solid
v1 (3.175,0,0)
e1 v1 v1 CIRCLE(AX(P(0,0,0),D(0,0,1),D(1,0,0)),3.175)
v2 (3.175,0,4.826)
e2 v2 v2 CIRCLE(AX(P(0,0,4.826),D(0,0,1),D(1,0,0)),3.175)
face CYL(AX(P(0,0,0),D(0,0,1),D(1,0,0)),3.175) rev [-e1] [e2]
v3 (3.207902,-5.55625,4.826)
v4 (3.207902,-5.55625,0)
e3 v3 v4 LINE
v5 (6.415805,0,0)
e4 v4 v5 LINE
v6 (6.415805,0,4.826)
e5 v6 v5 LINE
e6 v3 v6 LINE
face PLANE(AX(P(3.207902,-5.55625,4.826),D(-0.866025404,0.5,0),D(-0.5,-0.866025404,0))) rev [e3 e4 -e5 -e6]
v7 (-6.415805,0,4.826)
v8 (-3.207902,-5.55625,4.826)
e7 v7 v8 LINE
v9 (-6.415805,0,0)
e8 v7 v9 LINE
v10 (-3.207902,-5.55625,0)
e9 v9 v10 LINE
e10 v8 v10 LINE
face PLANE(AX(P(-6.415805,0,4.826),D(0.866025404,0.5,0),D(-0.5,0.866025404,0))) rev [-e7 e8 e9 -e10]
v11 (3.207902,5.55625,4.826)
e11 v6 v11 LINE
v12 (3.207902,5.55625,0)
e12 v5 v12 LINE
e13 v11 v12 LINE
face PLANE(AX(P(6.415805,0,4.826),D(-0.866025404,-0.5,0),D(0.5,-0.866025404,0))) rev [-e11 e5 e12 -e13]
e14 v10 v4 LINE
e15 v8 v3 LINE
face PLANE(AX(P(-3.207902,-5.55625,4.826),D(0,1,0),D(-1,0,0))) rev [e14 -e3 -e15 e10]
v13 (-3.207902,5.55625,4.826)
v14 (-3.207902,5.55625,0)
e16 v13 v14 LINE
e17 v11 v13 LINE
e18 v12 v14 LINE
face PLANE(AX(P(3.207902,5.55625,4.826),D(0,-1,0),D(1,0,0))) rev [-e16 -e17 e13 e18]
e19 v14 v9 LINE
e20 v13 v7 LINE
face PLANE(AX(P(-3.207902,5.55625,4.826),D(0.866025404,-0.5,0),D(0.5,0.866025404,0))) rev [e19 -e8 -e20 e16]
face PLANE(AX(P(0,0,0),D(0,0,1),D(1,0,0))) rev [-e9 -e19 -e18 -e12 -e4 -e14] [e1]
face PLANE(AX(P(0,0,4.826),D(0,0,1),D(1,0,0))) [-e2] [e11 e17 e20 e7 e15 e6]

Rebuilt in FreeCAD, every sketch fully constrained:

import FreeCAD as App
import Part
import Sketcher

V = App.Vector
Q = App.Units.Quantity

doc = App.newDocument("Part")
body = doc.addObject("PartDesign::Body", "Body")

sketch1 = doc.addObject("Sketcher::SketchObject", "Sketch")
body.addObject(sketch1)
sketch1.AttachmentSupport = (doc.XY_Plane, [""])
sketch1.MapMode = "FlatFace"
sketch1.addGeometry(Part.LineSegment(V(-6.415805, 0, 0), V(-3.207902, -5.55625, 0)), False)
sketch1.addGeometry(Part.LineSegment(V(-3.207902, -5.55625, 0), V(3.207902, -5.55625, 0)), False)
sketch1.addGeometry(Part.LineSegment(V(3.207902, -5.55625, 0), V(6.415805, 0, 0)), False)
sketch1.addGeometry(Part.LineSegment(V(6.415805, 0, 0), V(3.207902, 5.55625, 0)), False)
sketch1.addGeometry(Part.LineSegment(V(3.207902, 5.55625, 0), V(-3.207902, 5.55625, 0)), False)
sketch1.addGeometry(Part.LineSegment(V(-3.207902, 5.55625, 0), V(-6.415805, 0, 0)), False)
sketch1.addConstraint(Sketcher.Constraint("Coincident", 0, 2, 1, 1))
sketch1.addConstraint(Sketcher.Constraint("Coincident", 1, 2, 2, 1))
sketch1.addConstraint(Sketcher.Constraint("Coincident", 2, 2, 3, 1))
sketch1.addConstraint(Sketcher.Constraint("Coincident", 3, 2, 4, 1))
sketch1.addConstraint(Sketcher.Constraint("Coincident", 4, 2, 5, 1))
sketch1.addConstraint(Sketcher.Constraint("Coincident", 5, 2, 0, 1))
sketch1.addConstraint(Sketcher.Constraint("Horizontal", 1))
sketch1.addConstraint(Sketcher.Constraint("Horizontal", 4))
sketch1.addConstraint(Sketcher.Constraint("Symmetric", 0, 2, 3, 2, -1, 1))
sketch1.addConstraint(Sketcher.Constraint("Symmetric", 2, 2, 5, 2, -1, 1))
sketch1.addConstraint(Sketcher.Constraint("PointOnObject", 2, 2, -1))
sketch1.addConstraint(Sketcher.Constraint("Parallel", 2, 5))
sketch1.addConstraint(Sketcher.Constraint("Vertical", 1, 2, 3, 2))
sketch1.addConstraint(Sketcher.Constraint("Angle", 0, Q("-60 deg")))
sketch1.addConstraint(Sketcher.Constraint("DistanceY", 0, 2, -1, 1, Q("0.21875 in")))
sketch1.addConstraint(Sketcher.Constraint("DistanceX", 1, 1, 1, 2, Q("6.415805 mm")))
pad1 = doc.addObject("PartDesign::Pad", "Pad")
body.addObject(pad1)
pad1.Profile = sketch1
pad1.Length = Q("0.19 in")

sketch2 = doc.addObject("Sketcher::SketchObject", "Sketch001")
body.addObject(sketch2)
sketch2.AttachmentSupport = (doc.XY_Plane, [""])
sketch2.MapMode = "FlatFace"
sketch2.AttachmentOffset = App.Placement(V(0, 0, 0.19 * 25.4), App.Rotation())
sketch2.addGeometry(Part.Circle(V(0, 0, 0), V(0, 0, 1), 3.175), False)
sketch2.addConstraint(Sketcher.Constraint("Coincident", 0, 3, -1, 1))
sketch2.addConstraint(Sketcher.Constraint("Diameter", 0, Q("0.25 in")))
pocket1 = doc.addObject("PartDesign::Pocket", "Pocket")
body.addObject(pocket1)
pocket1.Profile = sketch2
pocket1.Type = "ThroughAll"

doc.recompute()
